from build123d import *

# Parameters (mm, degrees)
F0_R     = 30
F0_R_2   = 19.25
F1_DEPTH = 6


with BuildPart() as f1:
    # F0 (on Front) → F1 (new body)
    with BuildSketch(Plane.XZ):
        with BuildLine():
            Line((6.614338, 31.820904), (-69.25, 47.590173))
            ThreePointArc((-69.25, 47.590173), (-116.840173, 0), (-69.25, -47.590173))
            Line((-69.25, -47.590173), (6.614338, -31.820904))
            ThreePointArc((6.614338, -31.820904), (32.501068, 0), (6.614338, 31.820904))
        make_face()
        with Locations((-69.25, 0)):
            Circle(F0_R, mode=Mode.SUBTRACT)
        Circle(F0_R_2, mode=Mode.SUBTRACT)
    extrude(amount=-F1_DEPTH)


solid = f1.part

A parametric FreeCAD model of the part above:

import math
import FreeCAD as App
import Part
import Sketcher

V = App.Vector

doc = App.newDocument("Part")
params = doc.addObject("Spreadsheet::Sheet", "Params")
for row, (alias, value) in enumerate([
    ("sketch1_diameter", "60 mm"),
    ("sketch1_diameter2", "38.5 mm"),
    ("pad1_length", "6 mm"),
], start=1):
    params.set(f"A{row}", alias)
    params.set(f"B{row}", "=" + value)
    params.setAlias(f"B{row}", alias)

body = doc.addObject("PartDesign::Body", "Body")

# Sketch on XZ plane
sketch1 = body.newObject("Sketcher::SketchObject", "Sketch")
sketch1.AttachmentSupport = (doc.getObject("XZ_Plane"), [""])
sketch1.MapMode = "FlatFace"
sketch1.addGeometry([
    Part.LineSegment(V(6.614338, 31.820904, 0), V(-69.25, 47.590173, 0)),  # 0
    Part.ArcOfCircle(Part.Circle(V(-69.25, 0, 0), V(0, 0, 1), 47.590173), math.radians(90), math.radians(270)),  # 1
    Part.LineSegment(V(-69.25, -47.590173, 0), V(6.614338, -31.820904, 0)),  # 2
    Part.ArcOfCircle(Part.Circle(V(0, 0, 0), V(0, 0, 1), 32.501068), math.radians(-78.257629), math.radians(78.257629)),  # 3
    Part.Circle(V(-69.25, 0, 0), V(0, 0, 1), 30),  # 4
    Part.Circle(V(0, 0, 0), V(0, 0, 1), 19.25),  # 5
], False)
sketch1.addConstraint([
    Sketcher.Constraint("Coincident", 0, 2, 1, 1),
    Sketcher.Constraint("Coincident", 1, 2, 2, 1),
    Sketcher.Constraint("Tangent", 2, 2, 3, 1),
    Sketcher.Constraint("Tangent", 3, 2, 0, 1),
    Sketcher.Constraint("Coincident", 3, 3, -1, 1),
    Sketcher.Constraint("Coincident", 5, 3, -1, 1),
    Sketcher.Constraint("Coincident", 4, 3, 1, 3),
    Sketcher.Constraint("Symmetric", 0, 2, 1, 2, -1),
    Sketcher.Constraint("Vertical", 4, 3, 0, 2),
    Sketcher.Constraint("Diameter", 4, 60.0),
    Sketcher.Constraint("Diameter", 5, 38.5),
    Sketcher.Constraint("DistanceX", 1, 3, -1, 1, 69.25),
    Sketcher.Constraint("Radius", 1, 47.590173),
    Sketcher.Constraint("Radius", 3, 32.501068),
])
sketch1.setExpression("Constraints[9]", "Params.sketch1_diameter")
sketch1.setExpression("Constraints[10]", "Params.sketch1_diameter2")
pad1 = body.newObject("PartDesign::Pad", "Pad")
pad1.Profile = sketch1
pad1.setExpression("Length", "Params.pad1_length")
pad1.Reversed = True

doc.recompute()
